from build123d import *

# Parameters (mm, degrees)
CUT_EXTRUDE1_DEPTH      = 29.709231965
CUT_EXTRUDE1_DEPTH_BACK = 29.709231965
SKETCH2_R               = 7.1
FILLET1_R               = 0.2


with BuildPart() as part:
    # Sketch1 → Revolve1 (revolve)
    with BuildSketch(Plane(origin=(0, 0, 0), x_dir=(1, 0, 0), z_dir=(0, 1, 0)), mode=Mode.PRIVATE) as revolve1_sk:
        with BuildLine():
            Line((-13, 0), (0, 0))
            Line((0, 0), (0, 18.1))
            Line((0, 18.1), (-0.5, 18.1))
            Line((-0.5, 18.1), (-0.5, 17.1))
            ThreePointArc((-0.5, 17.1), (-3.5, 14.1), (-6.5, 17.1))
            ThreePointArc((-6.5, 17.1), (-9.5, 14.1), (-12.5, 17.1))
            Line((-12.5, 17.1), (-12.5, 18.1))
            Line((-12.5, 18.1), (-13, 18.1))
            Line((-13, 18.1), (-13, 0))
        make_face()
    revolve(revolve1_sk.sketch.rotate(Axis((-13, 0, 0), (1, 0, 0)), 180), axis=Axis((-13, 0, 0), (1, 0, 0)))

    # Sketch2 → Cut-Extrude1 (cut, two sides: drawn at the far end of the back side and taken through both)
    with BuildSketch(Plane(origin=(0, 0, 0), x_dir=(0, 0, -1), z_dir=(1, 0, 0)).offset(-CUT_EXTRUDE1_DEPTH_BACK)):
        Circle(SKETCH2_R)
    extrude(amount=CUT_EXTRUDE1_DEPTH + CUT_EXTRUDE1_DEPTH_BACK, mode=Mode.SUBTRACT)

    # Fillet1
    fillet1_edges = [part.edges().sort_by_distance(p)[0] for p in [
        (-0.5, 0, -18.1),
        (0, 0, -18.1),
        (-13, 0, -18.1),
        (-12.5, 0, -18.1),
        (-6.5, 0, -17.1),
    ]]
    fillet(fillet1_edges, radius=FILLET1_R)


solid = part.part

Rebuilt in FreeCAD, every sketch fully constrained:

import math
import FreeCAD as App
import Part
import Sketcher
from FreeCAD import Vector
Q = App.Units.Quantity


def edges_at(feature, points):
    """Names of the edges that pass closest to the given points."""
    edges = feature.Shape.Edges
    near = lambda p: min(range(len(edges)), key=lambda i: edges[i].distToShape(Part.Vertex(*p))[0])
    return sorted({f"Edge{near(p) + 1}" for p in points})

doc = App.newDocument("Part")
params = doc.addObject("Spreadsheet::Sheet", "Params")
for row, (alias, value) in enumerate([
    ("sketch1_radius", "3 mm"),
    ("sketch1_width", "13 mm"),
    ("sketch1_height", "1 mm"),
    ("sketch1_height2", "18.1 mm"),
    ("revolution_angle", "360 deg"),
    ("sketch2_diameter", "14.2 mm"),
    ("fillet_radius", "0.2 mm"),
], start=1):
    params.set(f"A{row}", alias)
    params.set(f"B{row}", "=" + value)
    params.setAlias(f"B{row}", alias)

body = doc.addObject("PartDesign::Body", "Body")

# Sketch on XZ plane
sketch1 = doc.addObject("Sketcher::SketchObject", "Sketch")
body.addObject(sketch1)
sketch1.AttachmentSupport = (doc.XZ_Plane, [""])
sketch1.MapMode = "FlatFace"
sketch1.addGeometry([
    Part.LineSegment(Vector(-13, 0, 0), Vector(0, 0, 0)),  # 0
    Part.LineSegment(Vector(0, 0, 0), Vector(0, -18.1, 0)),  # 1
    Part.LineSegment(Vector(0, -18.1, 0), Vector(-0.5, -18.1, 0)),  # 2
    Part.LineSegment(Vector(-0.5, -18.1, 0), Vector(-0.5, -17.1, 0)),  # 3
    Part.ArcOfCircle(Part.Circle(Vector(-3.5, -17.1, 0), Vector(0, 0, 1), 3), math.radians(0), math.radians(180)),  # 4
    Part.ArcOfCircle(Part.Circle(Vector(-9.5, -17.1, 0), Vector(0, 0, 1), 3), math.radians(0), math.radians(180)),  # 5
    Part.LineSegment(Vector(-12.5, -17.1, 0), Vector(-12.5, -18.1, 0)),  # 6
    Part.LineSegment(Vector(-12.5, -18.1, 0), Vector(-13, -18.1, 0)),  # 7
    Part.LineSegment(Vector(-13, -18.1, 0), Vector(-13, 0, 0)),  # 8
], False)
sketch1.addConstraint([
    Sketcher.Constraint("Coincident", 0, 2, 1, 1),
    Sketcher.Constraint("Coincident", 1, 2, 2, 1),
    Sketcher.Constraint("Coincident", 2, 2, 3, 1),
    Sketcher.Constraint("Tangent", 3, 2, 4, 1),
    Sketcher.Constraint("Tangent", 4, 2, 5, 1),
    Sketcher.Constraint("Tangent", 5, 2, 6, 1),
    Sketcher.Constraint("Coincident", 6, 2, 7, 1),
    Sketcher.Constraint("Coincident", 7, 2, 8, 1),
    Sketcher.Constraint("Coincident", 8, 2, 0, 1),
    Sketcher.Constraint("Horizontal", 0),
    Sketcher.Constraint("Vertical", 1),
    Sketcher.Constraint("Horizontal", 2),
    Sketcher.Constraint("Vertical", 3),
    Sketcher.Constraint("Vertical", 6),
    Sketcher.Constraint("Horizontal", 7),
    Sketcher.Constraint("Vertical", 8),
    Sketcher.Constraint("Coincident", 0, 2, -1, 1),
    Sketcher.Constraint("Equal", 4, 5),
    Sketcher.Constraint("Horizontal", 4, 3, 5, 3),
    Sketcher.Constraint("Horizontal", 2, 2, 6, 2),
    Sketcher.Constraint("Equal", 2, 7),
    Sketcher.Constraint("Radius", 4, Q("3 mm")),
    Sketcher.Constraint("DistanceX", 0, 1, 0, 2, Q("13 mm")),
    Sketcher.Constraint("DistanceY", 3, 1, 3, 2, Q("1 mm")),
    Sketcher.Constraint("DistanceY", 1, 2, 1, 1, Q("18.1 mm")),
])
sketch1.setExpression("Constraints[21]", "Params.sketch1_radius")
sketch1.setExpression("Constraints[22]", "Params.sketch1_width")
sketch1.setExpression("Constraints[23]", "Params.sketch1_height")
sketch1.setExpression("Constraints[24]", "Params.sketch1_height2")
revolution = doc.addObject("PartDesign::Revolution", "Revolution")
body.addObject(revolution)
revolution.Profile = sketch1
revolution.ReferenceAxis = (sketch1, ["H_Axis"])
revolution.setExpression("Angle", "Params.revolution_angle")

# Sketch on YZ plane
sketch2 = doc.addObject("Sketcher::SketchObject", "Sketch001")
body.addObject(sketch2)
sketch2.AttachmentSupport = (doc.YZ_Plane, [""])
sketch2.MapMode = "FlatFace"
sketch2.addGeometry(Part.Circle(Vector(0, 0, 0), Vector(0, 0, 1), 7), False)
sketch2.addConstraint([
    Sketcher.Constraint("Coincident", 0, 3, -1, 1),
    Sketcher.Constraint("Diameter", 0, Q("14.2 mm")),
])
sketch2.setExpression("Constraints[1]", "Params.sketch2_diameter")
pocket1 = doc.addObject("PartDesign::Pocket", "Pocket")
body.addObject(pocket1)
pocket1.Profile = sketch2
pocket1.Type = "ThroughAll"
pocket1.Midplane = True
doc.recompute()

fillet = doc.addObject("PartDesign::Fillet", "Fillet")
body.addObject(fillet)
fillet.Base = (pocket1, edges_at(pocket1, [
    (-0.5, 0, -18.1),
    (0, 0, -18.1),
    (-13, 0, -18.1),
    (-12.5, 0, -18.1),
    (-6.5, 0, -17.1),
]))
fillet.setExpression("Radius", "Params.fillet_radius")

doc.recompute()
